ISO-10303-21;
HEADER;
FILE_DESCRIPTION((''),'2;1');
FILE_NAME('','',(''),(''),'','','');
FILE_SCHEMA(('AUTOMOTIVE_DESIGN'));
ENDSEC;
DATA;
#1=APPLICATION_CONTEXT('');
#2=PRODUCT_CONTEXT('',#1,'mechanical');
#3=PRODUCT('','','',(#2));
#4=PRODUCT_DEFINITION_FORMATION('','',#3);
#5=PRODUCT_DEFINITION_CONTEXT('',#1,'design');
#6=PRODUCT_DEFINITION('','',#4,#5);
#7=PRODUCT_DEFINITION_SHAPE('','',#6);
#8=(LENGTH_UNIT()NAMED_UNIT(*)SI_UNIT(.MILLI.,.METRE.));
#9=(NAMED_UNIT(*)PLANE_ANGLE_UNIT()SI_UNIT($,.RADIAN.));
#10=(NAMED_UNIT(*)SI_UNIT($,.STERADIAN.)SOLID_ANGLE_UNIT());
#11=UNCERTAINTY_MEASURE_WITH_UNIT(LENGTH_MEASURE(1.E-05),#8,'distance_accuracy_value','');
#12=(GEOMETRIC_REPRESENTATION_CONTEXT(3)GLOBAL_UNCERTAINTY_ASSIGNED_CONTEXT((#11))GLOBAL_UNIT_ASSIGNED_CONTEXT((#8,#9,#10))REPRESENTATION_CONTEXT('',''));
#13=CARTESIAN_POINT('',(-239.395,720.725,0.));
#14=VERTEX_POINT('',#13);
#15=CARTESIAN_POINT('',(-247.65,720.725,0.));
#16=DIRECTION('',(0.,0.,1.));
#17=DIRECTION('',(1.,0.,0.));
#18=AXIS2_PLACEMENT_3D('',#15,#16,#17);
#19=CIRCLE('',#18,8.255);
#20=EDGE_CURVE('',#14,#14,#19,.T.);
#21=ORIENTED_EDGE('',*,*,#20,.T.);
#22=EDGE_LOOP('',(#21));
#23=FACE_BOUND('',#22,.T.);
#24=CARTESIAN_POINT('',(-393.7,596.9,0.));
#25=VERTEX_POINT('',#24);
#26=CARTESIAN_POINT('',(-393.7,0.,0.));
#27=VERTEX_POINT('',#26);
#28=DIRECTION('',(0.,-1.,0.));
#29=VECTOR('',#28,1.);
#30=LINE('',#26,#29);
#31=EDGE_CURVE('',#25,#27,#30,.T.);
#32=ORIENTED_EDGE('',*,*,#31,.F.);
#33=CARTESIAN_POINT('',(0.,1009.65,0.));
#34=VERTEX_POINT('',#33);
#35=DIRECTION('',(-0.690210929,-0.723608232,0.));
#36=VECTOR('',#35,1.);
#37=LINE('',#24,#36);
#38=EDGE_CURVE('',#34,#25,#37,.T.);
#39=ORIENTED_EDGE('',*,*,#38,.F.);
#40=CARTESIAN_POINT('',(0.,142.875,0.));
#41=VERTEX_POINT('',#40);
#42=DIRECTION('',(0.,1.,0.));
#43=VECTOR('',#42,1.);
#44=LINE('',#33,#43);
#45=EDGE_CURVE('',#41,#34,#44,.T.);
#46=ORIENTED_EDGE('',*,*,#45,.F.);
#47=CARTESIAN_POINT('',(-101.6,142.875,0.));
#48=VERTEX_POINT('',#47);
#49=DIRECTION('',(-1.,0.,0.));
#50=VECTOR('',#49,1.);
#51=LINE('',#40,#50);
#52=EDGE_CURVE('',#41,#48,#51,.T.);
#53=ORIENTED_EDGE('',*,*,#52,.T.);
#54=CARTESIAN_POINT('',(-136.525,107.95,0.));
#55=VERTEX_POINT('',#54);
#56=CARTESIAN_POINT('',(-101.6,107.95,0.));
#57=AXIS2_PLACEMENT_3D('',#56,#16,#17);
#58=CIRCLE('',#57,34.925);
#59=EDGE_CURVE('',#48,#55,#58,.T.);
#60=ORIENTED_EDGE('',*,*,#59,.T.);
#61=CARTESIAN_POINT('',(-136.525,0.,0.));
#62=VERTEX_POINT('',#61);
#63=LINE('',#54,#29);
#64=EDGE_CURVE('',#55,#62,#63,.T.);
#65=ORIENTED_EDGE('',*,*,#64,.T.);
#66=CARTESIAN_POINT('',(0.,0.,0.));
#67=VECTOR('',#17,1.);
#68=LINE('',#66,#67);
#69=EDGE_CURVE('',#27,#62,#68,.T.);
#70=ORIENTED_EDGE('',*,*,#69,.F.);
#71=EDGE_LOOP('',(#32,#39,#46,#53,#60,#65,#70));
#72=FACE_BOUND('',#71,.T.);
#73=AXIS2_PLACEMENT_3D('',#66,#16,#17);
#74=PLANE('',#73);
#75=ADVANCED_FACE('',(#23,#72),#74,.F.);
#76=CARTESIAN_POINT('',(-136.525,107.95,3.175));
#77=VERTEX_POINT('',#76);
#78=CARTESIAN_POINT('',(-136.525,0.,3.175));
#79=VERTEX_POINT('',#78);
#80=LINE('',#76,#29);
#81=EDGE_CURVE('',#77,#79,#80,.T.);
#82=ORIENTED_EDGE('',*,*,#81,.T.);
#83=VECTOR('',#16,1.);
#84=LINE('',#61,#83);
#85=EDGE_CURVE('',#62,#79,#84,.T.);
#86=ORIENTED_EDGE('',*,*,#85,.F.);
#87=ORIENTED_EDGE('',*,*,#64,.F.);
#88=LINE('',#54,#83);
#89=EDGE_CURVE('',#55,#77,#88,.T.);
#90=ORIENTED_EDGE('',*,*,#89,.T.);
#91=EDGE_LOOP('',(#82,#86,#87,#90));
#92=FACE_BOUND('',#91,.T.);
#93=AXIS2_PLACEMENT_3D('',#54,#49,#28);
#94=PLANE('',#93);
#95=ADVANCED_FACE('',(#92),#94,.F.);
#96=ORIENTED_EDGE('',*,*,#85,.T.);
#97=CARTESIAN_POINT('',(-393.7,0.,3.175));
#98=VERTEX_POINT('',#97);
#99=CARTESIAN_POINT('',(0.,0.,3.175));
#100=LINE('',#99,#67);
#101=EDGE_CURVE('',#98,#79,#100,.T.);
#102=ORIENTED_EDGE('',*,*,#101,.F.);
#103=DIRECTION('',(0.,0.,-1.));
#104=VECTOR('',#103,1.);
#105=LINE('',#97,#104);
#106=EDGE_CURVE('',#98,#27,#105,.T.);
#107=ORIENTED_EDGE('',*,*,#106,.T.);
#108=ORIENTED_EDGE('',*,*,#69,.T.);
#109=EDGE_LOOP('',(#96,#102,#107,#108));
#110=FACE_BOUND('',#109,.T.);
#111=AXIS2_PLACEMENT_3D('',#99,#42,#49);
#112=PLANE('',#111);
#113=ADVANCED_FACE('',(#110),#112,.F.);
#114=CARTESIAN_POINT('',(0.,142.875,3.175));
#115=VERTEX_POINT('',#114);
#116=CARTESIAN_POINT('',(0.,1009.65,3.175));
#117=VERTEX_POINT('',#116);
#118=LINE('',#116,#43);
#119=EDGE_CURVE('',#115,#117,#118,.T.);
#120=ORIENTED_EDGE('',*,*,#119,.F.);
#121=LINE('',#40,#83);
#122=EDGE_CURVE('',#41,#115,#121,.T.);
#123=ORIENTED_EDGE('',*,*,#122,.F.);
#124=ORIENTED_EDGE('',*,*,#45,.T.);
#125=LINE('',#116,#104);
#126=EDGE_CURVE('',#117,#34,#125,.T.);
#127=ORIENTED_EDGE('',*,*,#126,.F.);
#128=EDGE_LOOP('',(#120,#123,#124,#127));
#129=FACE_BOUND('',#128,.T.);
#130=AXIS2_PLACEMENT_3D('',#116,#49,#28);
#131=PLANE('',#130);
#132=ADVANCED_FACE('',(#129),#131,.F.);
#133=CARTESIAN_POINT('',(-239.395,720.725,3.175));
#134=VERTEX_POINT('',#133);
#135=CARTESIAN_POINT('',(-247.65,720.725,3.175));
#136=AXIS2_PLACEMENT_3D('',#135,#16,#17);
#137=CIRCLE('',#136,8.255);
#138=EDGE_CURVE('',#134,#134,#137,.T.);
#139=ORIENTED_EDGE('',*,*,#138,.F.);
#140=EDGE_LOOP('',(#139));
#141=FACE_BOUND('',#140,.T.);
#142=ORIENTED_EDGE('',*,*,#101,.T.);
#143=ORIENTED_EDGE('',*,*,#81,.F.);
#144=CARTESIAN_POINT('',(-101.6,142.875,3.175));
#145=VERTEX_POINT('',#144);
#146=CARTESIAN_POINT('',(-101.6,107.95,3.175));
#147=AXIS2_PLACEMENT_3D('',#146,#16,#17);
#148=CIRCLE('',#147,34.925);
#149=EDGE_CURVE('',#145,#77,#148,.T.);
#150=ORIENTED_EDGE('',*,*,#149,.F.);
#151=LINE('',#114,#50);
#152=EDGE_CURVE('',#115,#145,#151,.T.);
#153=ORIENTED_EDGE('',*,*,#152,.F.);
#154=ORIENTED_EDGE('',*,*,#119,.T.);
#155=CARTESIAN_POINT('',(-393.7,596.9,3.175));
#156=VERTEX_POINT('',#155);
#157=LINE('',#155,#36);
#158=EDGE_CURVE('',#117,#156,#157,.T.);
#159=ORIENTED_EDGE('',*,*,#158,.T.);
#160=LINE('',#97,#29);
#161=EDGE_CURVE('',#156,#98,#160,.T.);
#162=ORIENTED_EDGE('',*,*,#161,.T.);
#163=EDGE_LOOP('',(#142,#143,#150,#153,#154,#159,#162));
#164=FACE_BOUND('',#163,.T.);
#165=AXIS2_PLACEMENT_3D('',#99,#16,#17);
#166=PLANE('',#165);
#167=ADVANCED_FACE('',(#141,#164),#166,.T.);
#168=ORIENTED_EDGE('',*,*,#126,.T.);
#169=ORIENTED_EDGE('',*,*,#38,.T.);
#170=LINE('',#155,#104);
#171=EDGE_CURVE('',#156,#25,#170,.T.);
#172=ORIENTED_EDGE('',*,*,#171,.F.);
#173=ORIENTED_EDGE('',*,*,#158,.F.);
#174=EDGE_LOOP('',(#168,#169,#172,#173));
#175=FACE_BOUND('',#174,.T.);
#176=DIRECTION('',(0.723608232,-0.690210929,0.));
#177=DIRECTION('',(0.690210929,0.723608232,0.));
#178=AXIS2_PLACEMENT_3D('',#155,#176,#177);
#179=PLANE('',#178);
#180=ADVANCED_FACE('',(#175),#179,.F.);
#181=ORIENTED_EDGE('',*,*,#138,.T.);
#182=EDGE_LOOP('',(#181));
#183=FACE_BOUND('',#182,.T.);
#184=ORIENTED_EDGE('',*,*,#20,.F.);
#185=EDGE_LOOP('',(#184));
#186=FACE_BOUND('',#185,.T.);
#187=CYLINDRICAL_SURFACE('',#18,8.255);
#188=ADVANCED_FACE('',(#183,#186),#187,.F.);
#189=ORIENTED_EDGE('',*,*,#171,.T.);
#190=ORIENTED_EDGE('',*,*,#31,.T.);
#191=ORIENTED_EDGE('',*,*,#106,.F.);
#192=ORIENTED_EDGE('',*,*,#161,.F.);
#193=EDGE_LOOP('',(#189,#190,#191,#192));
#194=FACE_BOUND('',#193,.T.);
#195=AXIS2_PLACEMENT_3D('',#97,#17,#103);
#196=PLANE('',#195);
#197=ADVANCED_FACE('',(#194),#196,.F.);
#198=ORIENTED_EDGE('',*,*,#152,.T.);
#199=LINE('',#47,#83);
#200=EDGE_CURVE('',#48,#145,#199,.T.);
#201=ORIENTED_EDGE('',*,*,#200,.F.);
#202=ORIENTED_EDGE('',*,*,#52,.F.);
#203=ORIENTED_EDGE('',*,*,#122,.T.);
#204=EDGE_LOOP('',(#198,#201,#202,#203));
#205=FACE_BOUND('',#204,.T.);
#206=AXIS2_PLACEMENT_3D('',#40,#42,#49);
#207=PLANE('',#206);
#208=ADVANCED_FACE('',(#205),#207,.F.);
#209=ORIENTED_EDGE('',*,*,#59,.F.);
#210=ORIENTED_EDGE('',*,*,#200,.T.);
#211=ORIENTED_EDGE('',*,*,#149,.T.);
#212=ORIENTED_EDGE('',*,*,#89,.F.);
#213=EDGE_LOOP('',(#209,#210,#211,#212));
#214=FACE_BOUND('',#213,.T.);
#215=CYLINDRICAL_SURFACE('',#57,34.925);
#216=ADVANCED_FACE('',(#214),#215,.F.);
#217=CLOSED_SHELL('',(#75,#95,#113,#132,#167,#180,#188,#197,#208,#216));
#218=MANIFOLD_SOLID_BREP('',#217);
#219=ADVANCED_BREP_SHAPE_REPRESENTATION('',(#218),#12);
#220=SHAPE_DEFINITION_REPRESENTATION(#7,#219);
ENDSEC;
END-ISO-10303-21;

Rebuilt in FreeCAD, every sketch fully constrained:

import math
import FreeCAD as App
import Part
import Sketcher
from FreeCAD import Vector
Q = App.Units.Quantity


def add_polygon(sketch, points):
    """Adds a closed chain of lines whose ends are joined by coincident constraints."""
    first, n = sketch.GeometryCount, len(points)
    for a, b in zip(points, points[1:] + points[:1]):
        sketch.addGeometry(Part.LineSegment(App.Vector(*a, 0), App.Vector(*b, 0)), False)
    for i in range(n):
        sketch.addConstraint(Sketcher.Constraint("Coincident", first + i, 2, first + (i + 1) % n, 1))

doc = App.newDocument("Part")
body = doc.addObject("PartDesign::Body", "Body")

sketch1 = body.newObject("Sketcher::SketchObject", "Sketch")
sketch1.AttachmentSupport = (doc.getObject("XY_Plane"), [""])
sketch1.MapMode = "FlatFace"
add_polygon(sketch1, [(-394, 0), (0, 0), (0, 1010), (-394, 597)])
sketch1.addConstraint(Sketcher.Constraint("Horizontal", 0))
sketch1.addConstraint(Sketcher.Constraint("Vertical", 1))
sketch1.addConstraint(Sketcher.Constraint("Vertical", 3))
sketch1.addConstraint(Sketcher.Constraint("Coincident", 0, 2, -1, 1))
sketch1.addConstraint(Sketcher.Constraint("DistanceX", 0, 1, 0, 2, Q("15.5 in")))
sketch1.addConstraint(Sketcher.Constraint("DistanceY", 3, 2, 3, 1, Q("23.5 in")))
sketch1.addConstraint(Sketcher.Constraint("DistanceY", 1, 1, 1, 2, Q("39.75 in")))
pad1 = body.newObject("PartDesign::Pad", "Pad")
pad1.Profile = sketch1
pad1.Length = Q("0.125 in")

sketch2 = body.newObject("Sketcher::SketchObject", "Sketch001")
sketch2.AttachmentSupport = (doc.getObject("XY_Plane"), [""])
sketch2.MapMode = "FlatFace"
sketch2.AttachmentOffset = App.Placement(Vector(0, 0, 0.125 * 25.4), App.Rotation())
sketch2.addGeometry(Part.Circle(Vector(-248, 721, 0), Vector(0, 0, 1), 8), False)
sketch2.addConstraint(Sketcher.Constraint("Diameter", 0, Q("0.65 in")))
sketch2.addConstraint(Sketcher.Constraint("DistanceX", 0, 3, -1, 1, Q("9.75 in")))
sketch2.addConstraint(Sketcher.Constraint("DistanceY", -1, 1, 0, 3, Q("28.375 in")))
pocket1 = body.newObject("PartDesign::Pocket", "Pocket")
pocket1.Profile = sketch2
pocket1.Type = "ThroughAll"

sketch3 = body.newObject("Sketcher::SketchObject", "Sketch002")
sketch3.AttachmentSupport = (doc.getObject("XY_Plane"), [""])
sketch3.MapMode = "FlatFace"
sketch3.AttachmentOffset = App.Placement(Vector(0, 0, 0.125 * 25.4), App.Rotation())
sketch3.addGeometry(Part.LineSegment(Vector(0, 143, 0), Vector(-102, 143, 0)), False)
sketch3.addGeometry(Part.ArcOfCircle(Part.Circle(Vector(-102, 108, 0), Vector(0, 0, 1), 35), math.radians(90), math.radians(180)), False)
sketch3.addGeometry(Part.LineSegment(Vector(-137, 108, 0), Vector(-137, 0, 0)), False)
sketch3.addGeometry(Part.LineSegment(Vector(-137, 0, 0), Vector(0, 0, 0)), False)
sketch3.addGeometry(Part.LineSegment(Vector(0, 0, 0), Vector(0, 143, 0)), False)
sketch3.addConstraint(Sketcher.Constraint("Tangent", 0, 2, 1, 1))
sketch3.addConstraint(Sketcher.Constraint("Tangent", 1, 2, 2, 1))
sketch3.addConstraint(Sketcher.Constraint("Coincident", 2, 2, 3, 1))
sketch3.addConstraint(Sketcher.Constraint("Coincident", 3, 2, 4, 1))
sketch3.addConstraint(Sketcher.Constraint("Coincident", 4, 2, 0, 1))
sketch3.addConstraint(Sketcher.Constraint("Horizontal", 0))
sketch3.addConstraint(Sketcher.Constraint("Vertical", 2))
sketch3.addConstraint(Sketcher.Constraint("Horizontal", 3))
sketch3.addConstraint(Sketcher.Constraint("Vertical", 4))
sketch3.addConstraint(Sketcher.Constraint("Coincident", 3, 2, -1, 1))
sketch3.addConstraint(Sketcher.Constraint("DistanceX", 0, 2, 0, 1, Q("4 in")))
sketch3.addConstraint(Sketcher.Constraint("Radius", 1, Q("1.375 in")))
sketch3.addConstraint(Sketcher.Constraint("DistanceY", 2, 2, 2, 1, Q("4.25 in")))
pocket2 = body.newObject("PartDesign::Pocket", "Pocket001")
pocket2.Profile = sketch3
pocket2.Type = "ThroughAll"

doc.recompute()
